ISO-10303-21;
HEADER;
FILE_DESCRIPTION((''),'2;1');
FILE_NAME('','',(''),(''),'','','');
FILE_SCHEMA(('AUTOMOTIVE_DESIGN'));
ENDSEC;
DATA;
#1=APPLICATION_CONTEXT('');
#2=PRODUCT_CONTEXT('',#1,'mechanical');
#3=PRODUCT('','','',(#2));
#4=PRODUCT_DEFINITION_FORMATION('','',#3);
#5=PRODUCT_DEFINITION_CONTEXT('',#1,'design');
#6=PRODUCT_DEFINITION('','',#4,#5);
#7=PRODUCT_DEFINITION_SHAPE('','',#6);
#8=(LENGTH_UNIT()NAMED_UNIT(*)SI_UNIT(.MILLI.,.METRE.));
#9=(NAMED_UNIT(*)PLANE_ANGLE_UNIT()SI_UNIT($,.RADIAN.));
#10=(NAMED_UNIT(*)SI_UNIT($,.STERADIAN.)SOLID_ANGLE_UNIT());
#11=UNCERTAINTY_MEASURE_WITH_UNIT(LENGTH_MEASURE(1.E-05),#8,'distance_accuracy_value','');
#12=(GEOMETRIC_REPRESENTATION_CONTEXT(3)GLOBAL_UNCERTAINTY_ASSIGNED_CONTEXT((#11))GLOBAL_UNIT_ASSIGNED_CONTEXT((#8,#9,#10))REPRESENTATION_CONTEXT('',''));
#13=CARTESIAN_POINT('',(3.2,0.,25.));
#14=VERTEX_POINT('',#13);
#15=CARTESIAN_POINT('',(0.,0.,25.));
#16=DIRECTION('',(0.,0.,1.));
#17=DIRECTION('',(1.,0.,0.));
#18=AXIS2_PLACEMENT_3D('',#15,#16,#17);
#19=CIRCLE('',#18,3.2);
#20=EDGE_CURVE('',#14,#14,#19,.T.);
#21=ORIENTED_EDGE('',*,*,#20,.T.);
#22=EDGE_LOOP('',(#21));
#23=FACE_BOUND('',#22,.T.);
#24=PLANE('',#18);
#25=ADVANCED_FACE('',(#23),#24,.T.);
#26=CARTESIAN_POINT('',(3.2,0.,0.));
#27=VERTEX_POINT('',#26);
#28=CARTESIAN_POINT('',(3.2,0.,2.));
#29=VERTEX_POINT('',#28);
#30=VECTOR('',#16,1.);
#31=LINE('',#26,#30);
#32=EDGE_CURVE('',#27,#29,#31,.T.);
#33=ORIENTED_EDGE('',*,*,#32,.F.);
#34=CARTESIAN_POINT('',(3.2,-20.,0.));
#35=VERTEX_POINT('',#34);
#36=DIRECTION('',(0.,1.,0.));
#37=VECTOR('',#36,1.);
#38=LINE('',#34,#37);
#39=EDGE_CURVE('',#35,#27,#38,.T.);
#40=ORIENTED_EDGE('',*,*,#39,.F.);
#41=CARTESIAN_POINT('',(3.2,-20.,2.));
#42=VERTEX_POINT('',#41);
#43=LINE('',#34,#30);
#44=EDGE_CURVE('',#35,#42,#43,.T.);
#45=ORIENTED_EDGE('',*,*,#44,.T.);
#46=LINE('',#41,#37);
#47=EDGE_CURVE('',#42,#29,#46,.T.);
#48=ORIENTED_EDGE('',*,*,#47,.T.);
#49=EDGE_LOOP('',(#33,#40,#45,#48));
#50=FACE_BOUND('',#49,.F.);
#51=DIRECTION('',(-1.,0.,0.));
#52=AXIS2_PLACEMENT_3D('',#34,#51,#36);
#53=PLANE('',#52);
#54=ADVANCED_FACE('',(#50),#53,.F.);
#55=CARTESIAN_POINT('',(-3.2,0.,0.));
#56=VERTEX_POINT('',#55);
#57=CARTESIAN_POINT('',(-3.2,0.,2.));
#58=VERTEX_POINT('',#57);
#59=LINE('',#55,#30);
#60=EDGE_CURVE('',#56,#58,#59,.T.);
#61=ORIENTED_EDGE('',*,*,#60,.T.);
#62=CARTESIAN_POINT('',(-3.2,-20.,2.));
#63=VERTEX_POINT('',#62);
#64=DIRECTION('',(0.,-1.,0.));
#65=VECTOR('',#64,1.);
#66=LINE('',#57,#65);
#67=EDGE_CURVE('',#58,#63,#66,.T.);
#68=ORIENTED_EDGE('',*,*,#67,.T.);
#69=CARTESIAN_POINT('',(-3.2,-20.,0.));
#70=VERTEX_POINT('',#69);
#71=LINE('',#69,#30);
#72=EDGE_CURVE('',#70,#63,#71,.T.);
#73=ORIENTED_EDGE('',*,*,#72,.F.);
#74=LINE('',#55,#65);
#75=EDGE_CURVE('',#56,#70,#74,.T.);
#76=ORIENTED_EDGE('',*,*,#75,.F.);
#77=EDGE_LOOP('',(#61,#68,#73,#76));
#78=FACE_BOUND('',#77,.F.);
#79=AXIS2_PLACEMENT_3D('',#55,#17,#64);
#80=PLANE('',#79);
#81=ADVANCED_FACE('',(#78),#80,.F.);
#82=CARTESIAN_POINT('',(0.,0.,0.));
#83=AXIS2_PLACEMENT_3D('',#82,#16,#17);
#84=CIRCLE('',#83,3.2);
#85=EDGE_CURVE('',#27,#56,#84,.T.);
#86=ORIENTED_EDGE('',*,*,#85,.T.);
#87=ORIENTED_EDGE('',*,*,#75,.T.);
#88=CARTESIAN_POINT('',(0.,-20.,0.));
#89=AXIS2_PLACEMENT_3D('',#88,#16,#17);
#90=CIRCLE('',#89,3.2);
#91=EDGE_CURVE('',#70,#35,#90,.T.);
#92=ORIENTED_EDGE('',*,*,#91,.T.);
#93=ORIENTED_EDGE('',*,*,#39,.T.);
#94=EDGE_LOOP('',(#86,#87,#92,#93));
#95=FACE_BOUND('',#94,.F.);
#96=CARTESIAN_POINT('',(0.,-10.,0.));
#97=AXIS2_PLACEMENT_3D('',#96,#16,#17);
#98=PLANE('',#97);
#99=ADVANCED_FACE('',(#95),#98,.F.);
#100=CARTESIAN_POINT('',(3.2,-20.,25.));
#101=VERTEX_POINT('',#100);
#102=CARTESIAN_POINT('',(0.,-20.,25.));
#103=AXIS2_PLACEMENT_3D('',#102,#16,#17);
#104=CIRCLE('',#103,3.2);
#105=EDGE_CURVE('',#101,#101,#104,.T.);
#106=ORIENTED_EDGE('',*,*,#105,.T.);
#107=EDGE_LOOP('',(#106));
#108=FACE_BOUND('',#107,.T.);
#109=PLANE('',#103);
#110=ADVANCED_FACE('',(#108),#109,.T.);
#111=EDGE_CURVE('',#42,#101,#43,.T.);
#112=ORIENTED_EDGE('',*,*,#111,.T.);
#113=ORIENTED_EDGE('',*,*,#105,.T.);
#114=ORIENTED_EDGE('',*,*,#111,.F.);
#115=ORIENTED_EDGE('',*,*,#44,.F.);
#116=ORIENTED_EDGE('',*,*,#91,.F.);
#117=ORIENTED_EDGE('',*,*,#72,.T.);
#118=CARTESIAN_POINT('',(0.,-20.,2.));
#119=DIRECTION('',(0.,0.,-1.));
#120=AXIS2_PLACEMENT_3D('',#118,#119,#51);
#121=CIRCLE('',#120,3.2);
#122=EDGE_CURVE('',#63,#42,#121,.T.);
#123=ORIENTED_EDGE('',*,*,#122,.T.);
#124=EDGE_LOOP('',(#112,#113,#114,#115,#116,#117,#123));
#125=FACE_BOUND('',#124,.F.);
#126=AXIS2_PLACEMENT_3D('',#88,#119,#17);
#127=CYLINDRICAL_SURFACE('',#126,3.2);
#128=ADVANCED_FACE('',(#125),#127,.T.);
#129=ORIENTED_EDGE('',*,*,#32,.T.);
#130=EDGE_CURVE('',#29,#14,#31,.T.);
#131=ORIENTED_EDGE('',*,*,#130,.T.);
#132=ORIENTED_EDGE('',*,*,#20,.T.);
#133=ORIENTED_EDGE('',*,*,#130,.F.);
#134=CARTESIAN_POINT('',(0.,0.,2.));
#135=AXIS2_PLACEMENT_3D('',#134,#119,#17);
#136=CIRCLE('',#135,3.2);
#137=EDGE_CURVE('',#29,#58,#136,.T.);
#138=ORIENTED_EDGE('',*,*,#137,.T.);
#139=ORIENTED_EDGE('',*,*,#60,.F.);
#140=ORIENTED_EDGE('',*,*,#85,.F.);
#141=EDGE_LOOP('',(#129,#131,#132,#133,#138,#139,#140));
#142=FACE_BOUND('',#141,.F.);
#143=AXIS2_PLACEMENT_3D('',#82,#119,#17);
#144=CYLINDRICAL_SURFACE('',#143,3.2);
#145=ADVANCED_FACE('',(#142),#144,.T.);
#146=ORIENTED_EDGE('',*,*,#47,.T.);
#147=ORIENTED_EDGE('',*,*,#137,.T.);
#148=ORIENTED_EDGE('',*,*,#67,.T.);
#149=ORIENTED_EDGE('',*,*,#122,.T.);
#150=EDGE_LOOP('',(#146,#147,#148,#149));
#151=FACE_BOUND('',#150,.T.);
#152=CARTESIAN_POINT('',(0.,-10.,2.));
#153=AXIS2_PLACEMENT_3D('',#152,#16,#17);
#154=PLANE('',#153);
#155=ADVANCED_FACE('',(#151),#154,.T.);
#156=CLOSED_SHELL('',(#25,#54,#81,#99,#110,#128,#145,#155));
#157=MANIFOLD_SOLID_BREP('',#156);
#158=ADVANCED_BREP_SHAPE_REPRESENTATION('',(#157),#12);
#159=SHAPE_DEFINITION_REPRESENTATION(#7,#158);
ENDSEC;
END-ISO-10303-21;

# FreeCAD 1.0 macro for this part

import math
import FreeCAD as App
import Part
import Sketcher
from FreeCAD import Vector

doc = App.newDocument("Part")
body = doc.addObject("PartDesign::Body", "Body")
body.AllowCompound = True

sketch1 = body.newObject("Sketcher::SketchObject", "Sketch")
sketch1.AttachmentSupport = (doc.getObject("XY_Plane"), [""])
sketch1.MapMode = "FlatFace"
sketch1.addGeometry([
    Part.Circle(Vector(0, -20, 0), Vector(0, 0, 1), 3.2),
    Part.Circle(Vector(0, 0, 0), Vector(0, 0, 1), 3.2),
], False)
sketch1.addConstraint([
    Sketcher.Constraint("Coincident", 1, 3, -1, 1),
    Sketcher.Constraint("Equal", 0, 1),
    Sketcher.Constraint("PointOnObject", 0, 3, -2),
    Sketcher.Constraint("Diameter", 0, 6.4),
    Sketcher.Constraint("DistanceY", 0, 3, -1, 1, 20.0),
])
pad1 = body.newObject("PartDesign::Pad", "Pad")
pad1.Profile = sketch1
pad1.Length = 25

sketch2 = body.newObject("Sketcher::SketchObject", "Sketch001")
sketch2.AttachmentSupport = (doc.getObject("XY_Plane"), [""])
sketch2.MapMode = "FlatFace"
sketch2.addGeometry([
    Part.LineSegment(Vector(3.2, -20, 0), Vector(3.2, 0, 0)),
    Part.ArcOfCircle(Part.Circle(Vector(0, 0, 0), Vector(0, 0, 1), 3.2), math.radians(180), math.radians(360)),
    Part.LineSegment(Vector(-3.2, 0, 0), Vector(-3.2, -20, 0)),
    Part.ArcOfCircle(Part.Circle(Vector(0, -20, 0), Vector(0, 0, 1), 3.2), math.radians(0), math.radians(180)),
], False)
sketch2.addConstraint([
    Sketcher.Constraint("Tangent", 0, 2, 1, 2),
    Sketcher.Constraint("Tangent", 1, 1, 2, 1),
    Sketcher.Constraint("Tangent", 2, 2, 3, 2),
    Sketcher.Constraint("Tangent", 3, 1, 0, 1),
    Sketcher.Constraint("Vertical", 0),
    Sketcher.Constraint("Vertical", 2),
    Sketcher.Constraint("Coincident", 1, 3, -1, 1),
    Sketcher.Constraint("Radius", 1, 3.2),
    Sketcher.Constraint("DistanceY", 0, 1, 0, 2, 20.0),
])
pad2 = body.newObject("PartDesign::Pad", "Pad001")
pad2.Profile = sketch2
pad2.Length = 2

doc.recompute()
